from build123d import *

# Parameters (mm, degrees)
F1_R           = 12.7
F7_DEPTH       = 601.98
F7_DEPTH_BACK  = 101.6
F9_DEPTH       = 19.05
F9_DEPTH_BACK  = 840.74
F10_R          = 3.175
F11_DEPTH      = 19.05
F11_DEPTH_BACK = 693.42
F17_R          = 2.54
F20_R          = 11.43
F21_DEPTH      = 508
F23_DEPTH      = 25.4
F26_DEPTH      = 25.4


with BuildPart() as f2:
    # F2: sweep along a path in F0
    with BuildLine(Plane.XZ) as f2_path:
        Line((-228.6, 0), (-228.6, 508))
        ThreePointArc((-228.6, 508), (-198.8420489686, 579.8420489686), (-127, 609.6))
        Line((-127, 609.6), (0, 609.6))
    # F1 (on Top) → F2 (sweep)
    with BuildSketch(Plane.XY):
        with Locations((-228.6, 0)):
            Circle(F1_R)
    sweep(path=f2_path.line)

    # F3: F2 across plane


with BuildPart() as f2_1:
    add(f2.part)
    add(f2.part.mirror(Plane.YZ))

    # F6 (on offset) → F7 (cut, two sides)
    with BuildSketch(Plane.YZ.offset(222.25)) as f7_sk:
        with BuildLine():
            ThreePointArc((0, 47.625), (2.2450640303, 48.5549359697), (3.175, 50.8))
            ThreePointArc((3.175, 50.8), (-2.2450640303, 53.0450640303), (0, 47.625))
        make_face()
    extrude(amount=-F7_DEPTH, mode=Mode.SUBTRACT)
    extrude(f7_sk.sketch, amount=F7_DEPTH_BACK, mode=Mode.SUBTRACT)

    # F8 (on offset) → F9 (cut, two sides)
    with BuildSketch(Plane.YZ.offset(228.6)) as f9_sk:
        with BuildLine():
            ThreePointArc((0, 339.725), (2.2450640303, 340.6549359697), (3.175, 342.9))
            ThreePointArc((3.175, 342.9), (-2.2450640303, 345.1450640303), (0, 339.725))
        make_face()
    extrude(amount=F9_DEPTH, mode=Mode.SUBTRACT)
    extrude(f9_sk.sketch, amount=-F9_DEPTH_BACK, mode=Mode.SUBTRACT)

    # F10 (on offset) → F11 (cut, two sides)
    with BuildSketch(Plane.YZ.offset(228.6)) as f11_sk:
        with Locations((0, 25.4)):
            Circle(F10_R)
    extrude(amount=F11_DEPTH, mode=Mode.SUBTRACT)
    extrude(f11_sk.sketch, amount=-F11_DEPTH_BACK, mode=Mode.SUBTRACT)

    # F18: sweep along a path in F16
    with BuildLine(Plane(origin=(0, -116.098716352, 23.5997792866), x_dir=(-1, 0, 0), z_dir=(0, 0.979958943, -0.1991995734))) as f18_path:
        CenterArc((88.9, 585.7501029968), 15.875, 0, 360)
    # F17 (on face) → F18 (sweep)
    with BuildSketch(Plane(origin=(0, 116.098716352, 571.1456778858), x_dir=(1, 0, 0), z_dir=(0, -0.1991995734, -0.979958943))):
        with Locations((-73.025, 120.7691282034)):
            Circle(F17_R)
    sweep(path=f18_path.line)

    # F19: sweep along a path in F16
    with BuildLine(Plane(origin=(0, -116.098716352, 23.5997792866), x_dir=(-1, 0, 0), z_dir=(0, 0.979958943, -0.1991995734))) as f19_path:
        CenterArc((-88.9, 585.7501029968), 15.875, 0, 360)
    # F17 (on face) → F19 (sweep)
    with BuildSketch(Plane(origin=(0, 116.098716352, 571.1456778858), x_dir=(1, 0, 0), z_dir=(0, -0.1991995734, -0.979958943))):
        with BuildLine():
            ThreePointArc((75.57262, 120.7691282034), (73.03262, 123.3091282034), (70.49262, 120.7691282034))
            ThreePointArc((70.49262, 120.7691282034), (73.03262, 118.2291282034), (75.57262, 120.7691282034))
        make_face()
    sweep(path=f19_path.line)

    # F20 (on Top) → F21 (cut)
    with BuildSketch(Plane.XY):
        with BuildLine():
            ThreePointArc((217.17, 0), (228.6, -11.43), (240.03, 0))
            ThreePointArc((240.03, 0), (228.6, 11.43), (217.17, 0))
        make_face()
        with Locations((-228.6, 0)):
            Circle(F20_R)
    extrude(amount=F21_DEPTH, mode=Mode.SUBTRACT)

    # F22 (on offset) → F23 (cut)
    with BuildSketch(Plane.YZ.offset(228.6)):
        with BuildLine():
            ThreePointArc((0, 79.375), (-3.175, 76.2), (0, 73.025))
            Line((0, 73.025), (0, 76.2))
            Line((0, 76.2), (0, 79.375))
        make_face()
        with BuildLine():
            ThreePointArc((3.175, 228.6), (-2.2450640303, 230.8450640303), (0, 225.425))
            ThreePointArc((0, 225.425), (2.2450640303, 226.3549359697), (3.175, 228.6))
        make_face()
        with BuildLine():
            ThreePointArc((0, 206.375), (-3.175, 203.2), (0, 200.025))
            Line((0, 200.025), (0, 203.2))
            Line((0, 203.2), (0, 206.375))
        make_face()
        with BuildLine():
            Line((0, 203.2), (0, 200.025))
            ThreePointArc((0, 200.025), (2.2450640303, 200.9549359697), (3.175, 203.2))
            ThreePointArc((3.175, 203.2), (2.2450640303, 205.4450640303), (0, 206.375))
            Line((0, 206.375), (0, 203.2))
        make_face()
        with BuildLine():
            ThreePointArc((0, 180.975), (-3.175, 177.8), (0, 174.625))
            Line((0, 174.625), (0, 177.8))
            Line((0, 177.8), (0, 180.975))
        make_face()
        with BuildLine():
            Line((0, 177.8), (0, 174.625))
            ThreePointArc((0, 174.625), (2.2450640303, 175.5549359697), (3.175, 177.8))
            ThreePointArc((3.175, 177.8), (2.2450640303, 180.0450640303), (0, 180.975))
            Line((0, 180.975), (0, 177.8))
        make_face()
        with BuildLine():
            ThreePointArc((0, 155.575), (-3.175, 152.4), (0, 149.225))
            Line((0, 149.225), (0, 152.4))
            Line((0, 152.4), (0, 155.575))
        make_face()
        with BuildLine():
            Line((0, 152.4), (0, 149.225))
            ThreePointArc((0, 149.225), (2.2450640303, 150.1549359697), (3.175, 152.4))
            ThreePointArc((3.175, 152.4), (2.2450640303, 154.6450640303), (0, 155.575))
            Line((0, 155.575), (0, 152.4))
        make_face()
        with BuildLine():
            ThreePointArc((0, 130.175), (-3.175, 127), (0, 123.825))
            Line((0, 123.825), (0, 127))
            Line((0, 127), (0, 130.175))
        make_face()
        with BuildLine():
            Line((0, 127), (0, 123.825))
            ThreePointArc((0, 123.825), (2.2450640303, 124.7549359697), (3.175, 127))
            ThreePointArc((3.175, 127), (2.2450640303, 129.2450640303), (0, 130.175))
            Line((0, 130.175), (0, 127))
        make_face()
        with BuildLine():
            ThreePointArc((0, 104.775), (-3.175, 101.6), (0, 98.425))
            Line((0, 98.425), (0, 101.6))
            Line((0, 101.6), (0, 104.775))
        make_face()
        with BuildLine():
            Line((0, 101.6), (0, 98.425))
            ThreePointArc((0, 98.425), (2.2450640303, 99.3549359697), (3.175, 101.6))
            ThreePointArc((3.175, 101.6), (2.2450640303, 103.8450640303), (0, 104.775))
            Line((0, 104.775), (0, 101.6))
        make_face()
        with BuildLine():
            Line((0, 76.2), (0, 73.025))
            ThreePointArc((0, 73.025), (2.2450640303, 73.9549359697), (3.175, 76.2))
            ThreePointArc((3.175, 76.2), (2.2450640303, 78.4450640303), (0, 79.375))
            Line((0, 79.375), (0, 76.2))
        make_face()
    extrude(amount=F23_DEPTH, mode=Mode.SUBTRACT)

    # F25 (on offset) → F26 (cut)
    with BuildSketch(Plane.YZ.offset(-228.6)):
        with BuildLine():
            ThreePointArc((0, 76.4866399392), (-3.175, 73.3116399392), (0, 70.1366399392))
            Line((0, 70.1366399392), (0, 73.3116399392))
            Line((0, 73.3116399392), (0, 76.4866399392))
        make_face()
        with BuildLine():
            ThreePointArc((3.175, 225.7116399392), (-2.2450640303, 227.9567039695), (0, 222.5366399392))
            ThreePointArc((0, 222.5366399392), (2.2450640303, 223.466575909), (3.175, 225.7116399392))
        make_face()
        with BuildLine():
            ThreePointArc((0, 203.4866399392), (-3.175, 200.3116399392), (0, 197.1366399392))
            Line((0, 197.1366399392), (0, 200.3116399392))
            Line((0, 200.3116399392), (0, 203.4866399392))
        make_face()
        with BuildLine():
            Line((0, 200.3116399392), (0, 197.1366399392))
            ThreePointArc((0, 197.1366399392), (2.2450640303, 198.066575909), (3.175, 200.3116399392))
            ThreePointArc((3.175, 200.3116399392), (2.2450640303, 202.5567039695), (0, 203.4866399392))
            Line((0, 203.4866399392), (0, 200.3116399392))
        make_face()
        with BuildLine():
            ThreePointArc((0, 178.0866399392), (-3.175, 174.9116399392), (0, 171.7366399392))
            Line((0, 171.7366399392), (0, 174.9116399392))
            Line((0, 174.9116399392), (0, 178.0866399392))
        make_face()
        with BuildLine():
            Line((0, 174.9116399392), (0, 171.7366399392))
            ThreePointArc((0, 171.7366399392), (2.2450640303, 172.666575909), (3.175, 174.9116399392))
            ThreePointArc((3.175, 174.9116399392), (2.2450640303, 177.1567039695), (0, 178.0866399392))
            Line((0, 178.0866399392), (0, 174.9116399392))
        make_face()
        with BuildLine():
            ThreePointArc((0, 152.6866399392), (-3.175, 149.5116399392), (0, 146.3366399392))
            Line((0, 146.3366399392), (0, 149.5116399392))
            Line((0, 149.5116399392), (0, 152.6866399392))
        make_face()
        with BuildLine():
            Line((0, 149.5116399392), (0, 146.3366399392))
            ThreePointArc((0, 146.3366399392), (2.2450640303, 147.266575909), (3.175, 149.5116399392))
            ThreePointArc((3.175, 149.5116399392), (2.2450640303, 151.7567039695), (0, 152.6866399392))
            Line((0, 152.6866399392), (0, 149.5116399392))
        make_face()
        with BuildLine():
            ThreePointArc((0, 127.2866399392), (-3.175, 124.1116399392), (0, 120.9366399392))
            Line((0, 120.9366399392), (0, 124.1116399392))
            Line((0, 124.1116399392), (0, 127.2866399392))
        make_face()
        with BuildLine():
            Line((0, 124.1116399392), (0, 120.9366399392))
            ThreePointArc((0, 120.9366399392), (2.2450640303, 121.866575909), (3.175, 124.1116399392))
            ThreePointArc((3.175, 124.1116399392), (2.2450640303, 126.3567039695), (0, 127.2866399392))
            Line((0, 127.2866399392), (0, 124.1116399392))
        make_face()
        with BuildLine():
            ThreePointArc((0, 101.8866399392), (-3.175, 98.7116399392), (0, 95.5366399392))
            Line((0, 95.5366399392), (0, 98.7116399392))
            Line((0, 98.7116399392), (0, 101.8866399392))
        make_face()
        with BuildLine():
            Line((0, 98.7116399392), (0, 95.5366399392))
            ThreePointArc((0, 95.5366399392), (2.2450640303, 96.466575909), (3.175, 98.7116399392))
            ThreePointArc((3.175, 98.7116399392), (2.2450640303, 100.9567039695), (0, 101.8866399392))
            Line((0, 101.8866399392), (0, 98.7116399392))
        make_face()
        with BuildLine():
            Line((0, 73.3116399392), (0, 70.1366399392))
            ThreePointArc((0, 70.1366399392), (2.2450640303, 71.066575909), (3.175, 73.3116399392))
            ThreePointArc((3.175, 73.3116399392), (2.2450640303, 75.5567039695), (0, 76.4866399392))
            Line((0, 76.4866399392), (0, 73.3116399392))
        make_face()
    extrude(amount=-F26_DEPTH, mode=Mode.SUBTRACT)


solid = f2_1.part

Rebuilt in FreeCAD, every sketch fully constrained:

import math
import FreeCAD as App
import Part
import Sketcher
from FreeCAD import Vector
Q = App.Units.Quantity

doc = App.newDocument("Part")
params = doc.addObject("Spreadsheet::Sheet", "Params")
for row, (alias, value) in enumerate([
    ("sketch1_diameter", "1 in"),
    ("sketch2_radius", "4 in"),
    ("sketch2_width", "5 in"),
    ("sketch2_height", "20 in"),
    ("sketch3_radius", "0.125 in"),
    ("sketch4_radius", "0.125 in"),
    ("sketch5_diameter", "0.25 in"),
    ("sketch6_diameter", "0.2 in"),
    ("sketch7_diameter", "1.25 in"),
    ("sketch8_diameter", "0.2 in"),
    ("sketch9_diameter", "1.25 in"),
    ("sketch10_diameter", "0.9 in"),
    ("pocket4_length", "20 in"),
    ("sketch11_radius", "0.125 in"),
    ("pocket5_length", "1 in"),
    ("sketch12_radius", "0.125 in"),
    ("pocket6_length", "1 in"),
], start=1):
    params.set(f"A{row}", alias)
    params.set(f"B{row}", "=" + value)
    params.setAlias(f"B{row}", alias)

body = doc.addObject("PartDesign::Body", "Body")

# Sketch on XY plane
sketch1 = doc.addObject("Sketcher::SketchObject", "Sketch")
body.addObject(sketch1)
sketch1.AttachmentSupport = (doc.XY_Plane, [""])
sketch1.MapMode = "FlatFace"
sketch1.addGeometry(Part.Circle(Vector(-229, 0, 0), Vector(0, 0, 1), 13), False)
sketch1.addConstraint(Sketcher.Constraint("PointOnObject", 0, 3, -1))
sketch1.addConstraint(Sketcher.Constraint("Diameter", 0, Q("1 in")))
sketch1.addConstraint(Sketcher.Constraint("DistanceX", 0, 3, -1, 1, Q("9 in")))
sketch1.setExpression("Constraints[1]", "Params.sketch1_diameter")

# Sketch on XZ plane
sketch2 = doc.addObject("Sketcher::SketchObject", "Sketch001")
body.addObject(sketch2)
sketch2.AttachmentSupport = (doc.XZ_Plane, [""])
sketch2.MapMode = "FlatFace"
sketch2.addGeometry(Part.LineSegment(Vector(-229, 0, 0), Vector(-229, 508, 0)), False)
sketch2.addGeometry(Part.ArcOfCircle(Part.Circle(Vector(-127, 508, 0), Vector(0, 0, 1), 102), math.radians(90), math.radians(180)), False)
sketch2.addGeometry(Part.LineSegment(Vector(-127, 610, 0), Vector(0, 610, 0)), False)
sketch2.addConstraint(Sketcher.Constraint("Tangent", 0, 2, 1, 2))
sketch2.addConstraint(Sketcher.Constraint("Tangent", 1, 1, 2, 1))
sketch2.addConstraint(Sketcher.Constraint("Vertical", 0))
sketch2.addConstraint(Sketcher.Constraint("Horizontal", 2))
sketch2.addConstraint(Sketcher.Constraint("PointOnObject", 0, 1, -1))
sketch2.addConstraint(Sketcher.Constraint("PointOnObject", 2, 2, -2))
sketch2.addConstraint(Sketcher.Constraint("Radius", 1, Q("4 in")))
sketch2.addConstraint(Sketcher.Constraint("DistanceX", 2, 1, 2, 2, Q("5 in")))
sketch2.addConstraint(Sketcher.Constraint("DistanceY", 0, 1, 0, 2, Q("20 in")))
sketch2.setExpression("Constraints[6]", "Params.sketch2_radius")
sketch2.setExpression("Constraints[7]", "Params.sketch2_width")
sketch2.setExpression("Constraints[8]", "Params.sketch2_height")
doc.recompute()

additivepipe = doc.addObject("PartDesign::AdditivePipe", "AdditivePipe")
body.addObject(additivepipe)
additivepipe.Profile = sketch1
additivepipe.Spine = (sketch2, ["Edge1", "Edge2", "Edge3"])
body2 = doc.addObject("PartDesign::Body", "Body001")
doc.recompute()

body2.BaseFeature = body
doc.recompute()

mirroring = doc.addObject("Part::Mirroring", "Mirroring")
mirroring.Source = body
mirroring.Base = Vector(0, 0, 0)
mirroring.Normal = Vector(1, 0, 0)
body3 = doc.addObject("PartDesign::Body", "Body002")
body3.BaseFeature = mirroring
boolean = doc.addObject("PartDesign::Boolean", "Boolean")
body2.addObject(boolean)
boolean.Type = "Fuse"
boolean.addObjects([body3])
doc.recompute()

# Sketch on YZ plane
sketch3 = doc.addObject("Sketcher::SketchObject", "Sketch002")
body2.addObject(sketch3)
sketch3.AttachmentSupport = (doc.getObject("YZ_Plane001"), [""])
sketch3.MapMode = "FlatFace"
sketch3.AttachmentOffset = App.Placement(Vector(0, 0, 8.75 * 25.4), App.Rotation())
sketch3.addGeometry(Part.ArcOfCircle(Part.Circle(Vector(0, 50.8, 0), Vector(0, 0, 1), 3.2), math.radians(-90), math.radians(0)), False)
sketch3.addGeometry(Part.ArcOfCircle(Part.Circle(Vector(0, 50.8, 0), Vector(0, 0, 1), 3.2), math.radians(0), math.radians(270)), False)
sketch3.addConstraint(Sketcher.Constraint("Tangent", 0, 1, 1, 2))
sketch3.addConstraint(Sketcher.Constraint("Coincident", 1, 1, 0, 2))
sketch3.addConstraint(Sketcher.Constraint("PointOnObject", 0, 3, -2))
sketch3.addConstraint(Sketcher.Constraint("PointOnObject", 0, 1, -2))
sketch3.addConstraint(Sketcher.Constraint("Horizontal", 0, 3, 1, 1))
sketch3.addConstraint(Sketcher.Constraint("DistanceY", -1, 1, 0, 3, Q("2 in")))
sketch3.addConstraint(Sketcher.Constraint("Radius", 0, Q("0.125 in")))
sketch3.setExpression("Constraints[6]", "Params.sketch3_radius")
pocket1 = doc.addObject("PartDesign::Pocket", "Pocket")
body2.addObject(pocket1)
pocket1.Profile = sketch3
pocket1.Type = "ThroughAll"
pocket1.Midplane = True

# Sketch on YZ plane
sketch4 = doc.addObject("Sketcher::SketchObject", "Sketch003")
body2.addObject(sketch4)
sketch4.AttachmentSupport = (doc.getObject("YZ_Plane001"), [""])
sketch4.MapMode = "FlatFace"
sketch4.AttachmentOffset = App.Placement(Vector(0, 0, 9 * 25.4), App.Rotation())
sketch4.addGeometry(Part.ArcOfCircle(Part.Circle(Vector(0, 342.9, 0), Vector(0, 0, 1), 3.2), math.radians(-90), math.radians(0)), False)
sketch4.addGeometry(Part.ArcOfCircle(Part.Circle(Vector(0, 342.9, 0), Vector(0, 0, 1), 3.2), math.radians(0), math.radians(270)), False)
sketch4.addConstraint(Sketcher.Constraint("Tangent", 0, 1, 1, 2))
sketch4.addConstraint(Sketcher.Constraint("Coincident", 1, 1, 0, 2))
sketch4.addConstraint(Sketcher.Constraint("PointOnObject", 0, 3, -2))
sketch4.addConstraint(Sketcher.Constraint("PointOnObject", 0, 1, -2))
sketch4.addConstraint(Sketcher.Constraint("Horizontal", 0, 3, 1, 1))
sketch4.addConstraint(Sketcher.Constraint("Radius", 0, Q("0.125 in")))
sketch4.addConstraint(Sketcher.Constraint("DistanceY", -1, 1, 0, 3, Q("13.5 in")))
sketch4.setExpression("Constraints[5]", "Params.sketch4_radius")
pocket2 = doc.addObject("PartDesign::Pocket", "Pocket001")
body2.addObject(pocket2)
pocket2.Profile = sketch4
pocket2.Type = "ThroughAll"
pocket2.Midplane = True

# Sketch on YZ plane
sketch5 = doc.addObject("Sketcher::SketchObject", "Sketch004")
body2.addObject(sketch5)
sketch5.AttachmentSupport = (doc.getObject("YZ_Plane001"), [""])
sketch5.MapMode = "FlatFace"
sketch5.AttachmentOffset = App.Placement(Vector(0, 0, 9 * 25.4), App.Rotation())
sketch5.addGeometry(Part.Circle(Vector(0, 25.4, 0), Vector(0, 0, 1), 3.2), False)
sketch5.addConstraint(Sketcher.Constraint("PointOnObject", 0, 3, -2))
sketch5.addConstraint(Sketcher.Constraint("Diameter", 0, Q("0.25 in")))
sketch5.addConstraint(Sketcher.Constraint("DistanceY", -1, 1, 0, 3, Q("1 in")))
sketch5.setExpression("Constraints[1]", "Params.sketch5_diameter")
pocket3 = doc.addObject("PartDesign::Pocket", "Pocket002")
body2.addObject(pocket3)
pocket3.Profile = sketch5
pocket3.Type = "ThroughAll"
pocket3.Midplane = True

# Sketch on an angled plane
sketch6 = doc.addObject("Sketcher::SketchObject", "Sketch005")
body2.addObject(sketch6)
sketch6.Placement = App.Placement(Vector(0, 116.098716, 571.145678), App.Rotation(Vector(1, 0, 0), Vector(0, -0.979958943, 0.199199573), Vector(0, -0.199199573, -0.979958943), "ZXY"))
sketch6.addGeometry(Part.Circle(Vector(-73, 120.8, 0), Vector(0, 0, 1), 2.5), False)
sketch6.addConstraint(Sketcher.Constraint("Diameter", 0, Q("0.2 in")))
sketch6.addConstraint(Sketcher.Constraint("DistanceX", 0, 3, -1, 1, Q("2.875 in")))
sketch6.addConstraint(Sketcher.Constraint("DistanceY", -1, 1, 0, 3, Q("120.769128 mm")))
sketch6.setExpression("Constraints[0]", "Params.sketch6_diameter")

# Sketch on an angled plane
sketch7 = doc.addObject("Sketcher::SketchObject", "Sketch006")
body2.addObject(sketch7)
sketch7.Placement = App.Placement(Vector(0, -116.098716, 23.599779), App.Rotation(Vector(0, -0.199199573, -0.979958943), Vector(1, 0, 0), Vector(0, -0.979958943, 0.199199573), "ZXY"))
sketch7.addGeometry(Part.Circle(Vector(-586, -89, 0), Vector(0, 0, 1), 16), False)
sketch7.addConstraint(Sketcher.Constraint("Diameter", 0, Q("1.25 in")))
sketch7.addConstraint(Sketcher.Constraint("DistanceY", 0, 3, -1, 1, Q("3.5 in")))
sketch7.addConstraint(Sketcher.Constraint("DistanceX", 0, 3, -1, 1, Q("585.750103 mm")))
sketch7.setExpression("Constraints[0]", "Params.sketch7_diameter")
doc.recompute()

additivepipe2 = doc.addObject("PartDesign::AdditivePipe", "AdditivePipe001")
body2.addObject(additivepipe2)
additivepipe2.Profile = sketch6
additivepipe2.Spine = (sketch7, ["Edge1"])

# Sketch on an angled plane
sketch8 = doc.addObject("Sketcher::SketchObject", "Sketch007")
body2.addObject(sketch8)
sketch8.Placement = App.Placement(Vector(0, 116.098716, 571.145678), App.Rotation(Vector(1, 0, 0), Vector(0, -0.979958943, 0.199199573), Vector(0, -0.199199573, -0.979958943), "ZXY"))
sketch8.addGeometry(Part.Circle(Vector(73, 120.8, 0), Vector(0, 0, 1), 2.5), False)
sketch8.addConstraint(Sketcher.Constraint("Diameter", 0, Q("0.2 in")))
sketch8.addConstraint(Sketcher.Constraint("DistanceX", -1, 1, 0, 3, Q("2.8753 in")))
sketch8.addConstraint(Sketcher.Constraint("DistanceY", -1, 1, 0, 3, Q("120.769128 mm")))
sketch8.setExpression("Constraints[0]", "Params.sketch8_diameter")

# Sketch on an angled plane
sketch9 = doc.addObject("Sketcher::SketchObject", "Sketch008")
body2.addObject(sketch9)
sketch9.Placement = App.Placement(Vector(0, -116.098716, 23.599779), App.Rotation(Vector(0, -0.199199573, -0.979958943), Vector(1, 0, 0), Vector(0, -0.979958943, 0.199199573), "ZXY"))
sketch9.addGeometry(Part.Circle(Vector(-586, 89, 0), Vector(0, 0, 1), 16), False)
sketch9.addConstraint(Sketcher.Constraint("Diameter", 0, Q("1.25 in")))
sketch9.addConstraint(Sketcher.Constraint("DistanceY", -1, 1, 0, 3, Q("3.5 in")))
sketch9.addConstraint(Sketcher.Constraint("DistanceX", 0, 3, -1, 1, Q("585.750103 mm")))
sketch9.setExpression("Constraints[0]", "Params.sketch9_diameter")
doc.recompute()

additivepipe3 = doc.addObject("PartDesign::AdditivePipe", "AdditivePipe002")
body2.addObject(additivepipe3)
additivepipe3.Profile = sketch8
additivepipe3.Spine = (sketch9, ["Edge1"])

# Sketch on XY plane
sketch10 = doc.addObject("Sketcher::SketchObject", "Sketch009")
body2.addObject(sketch10)
sketch10.AttachmentSupport = (doc.getObject("XY_Plane001"), [""])
sketch10.MapMode = "FlatFace"
sketch10.addGeometry(Part.Circle(Vector(229, 0, 0), Vector(0, 0, 1), 11), False)
sketch10.addGeometry(Part.Circle(Vector(-229, 0, 0), Vector(0, 0, 1), 11), False)
sketch10.addConstraint(Sketcher.Constraint("Equal", 0, 1))
sketch10.addConstraint(Sketcher.Constraint("Symmetric", 0, 3, 1, 3, -1, 1))
sketch10.addConstraint(Sketcher.Constraint("PointOnObject", 0, 3, -1))
sketch10.addConstraint(Sketcher.Constraint("Diameter", 0, Q("0.9 in")))
sketch10.addConstraint(Sketcher.Constraint("DistanceX", -1, 1, 0, 3, Q("9 in")))
sketch10.setExpression("Constraints[3]", "Params.sketch10_diameter")
pocket4 = doc.addObject("PartDesign::Pocket", "Pocket003")
body2.addObject(pocket4)
pocket4.Profile = sketch10
pocket4.setExpression("Length", "Params.pocket4_length")
pocket4.Reversed = True

# Sketch on YZ plane
sketch11 = doc.addObject("Sketcher::SketchObject", "Sketch010")
body2.addObject(sketch11)
sketch11.AttachmentSupport = (doc.getObject("YZ_Plane001"), [""])
sketch11.MapMode = "FlatFace"
sketch11.AttachmentOffset = App.Placement(Vector(0, 0, 9 * 25.4), App.Rotation())
sketch11.addGeometry(Part.ArcOfCircle(Part.Circle(Vector(0, 76.2, 0), Vector(0, 0, 1), 3.2), math.radians(90), math.radians(270)), False)
sketch11.addGeometry(Part.ArcOfCircle(Part.Circle(Vector(0, 76.2, 0), Vector(0, 0, 1), 3.2), math.radians(-90), math.radians(0)), False)
sketch11.addGeometry(Part.ArcOfCircle(Part.Circle(Vector(0, 76.2, 0), Vector(0, 0, 1), 3.2), math.radians(0), math.radians(90)), False)
sketch11.addGeometry(Part.ArcOfCircle(Part.Circle(Vector(0, 228.6, 0), Vector(0, 0, 1), 3.2), math.radians(0), math.radians(270)), False)
sketch11.addGeometry(Part.ArcOfCircle(Part.Circle(Vector(0, 228.6, 0), Vector(0, 0, 1), 3.2), math.radians(-90), math.radians(0)), False)
sketch11.addGeometry(Part.ArcOfCircle(Part.Circle(Vector(0, 203.2, 0), Vector(0, 0, 1), 3.2), math.radians(90), math.radians(270)), False)
sketch11.addGeometry(Part.ArcOfCircle(Part.Circle(Vector(0, 203.2, 0), Vector(0, 0, 1), 3.2), math.radians(-90), math.radians(0)), False)
sketch11.addGeometry(Part.ArcOfCircle(Part.Circle(Vector(0, 203.2, 0), Vector(0, 0, 1), 3.2), math.radians(0), math.radians(90)), False)
sketch11.addGeometry(Part.ArcOfCircle(Part.Circle(Vector(0, 177.8, 0), Vector(0, 0, 1), 3.2), math.radians(90), math.radians(270)), False)
sketch11.addGeometry(Part.ArcOfCircle(Part.Circle(Vector(0, 177.8, 0), Vector(0, 0, 1), 3.2), math.radians(-90), math.radians(0)), False)
sketch11.addGeometry(Part.ArcOfCircle(Part.Circle(Vector(0, 177.8, 0), Vector(0, 0, 1), 3.2), math.radians(0), math.radians(90)), False)
sketch11.addGeometry(Part.ArcOfCircle(Part.Circle(Vector(0, 152.4, 0), Vector(0, 0, 1), 3.2), math.radians(90), math.radians(270)), False)
sketch11.addGeometry(Part.ArcOfCircle(Part.Circle(Vector(0, 152.4, 0), Vector(0, 0, 1), 3.2), math.radians(-90), math.radians(0)), False)
sketch11.addGeometry(Part.ArcOfCircle(Part.Circle(Vector(0, 152.4, 0), Vector(0, 0, 1), 3.2), math.radians(0), math.radians(90)), False)
sketch11.addGeometry(Part.ArcOfCircle(Part.Circle(Vector(0, 127, 0), Vector(0, 0, 1), 3.2), math.radians(90), math.radians(270)), False)
sketch11.addGeometry(Part.ArcOfCircle(Part.Circle(Vector(0, 127, 0), Vector(0, 0, 1), 3.2), math.radians(-90), math.radians(0)), False)
sketch11.addGeometry(Part.ArcOfCircle(Part.Circle(Vector(0, 127, 0), Vector(0, 0, 1), 3.2), math.radians(0), math.radians(90)), False)
sketch11.addGeometry(Part.ArcOfCircle(Part.Circle(Vector(0, 101.6, 0), Vector(0, 0, 1), 3.2), math.radians(90), math.radians(270)), False)
sketch11.addGeometry(Part.ArcOfCircle(Part.Circle(Vector(0, 101.6, 0), Vector(0, 0, 1), 3.2), math.radians(-90), math.radians(0)), False)
sketch11.addGeometry(Part.ArcOfCircle(Part.Circle(Vector(0, 101.6, 0), Vector(0, 0, 1), 3.2), math.radians(0), math.radians(90)), False)
sketch11.addConstraint(Sketcher.Constraint("Tangent", 0, 2, 1, 1))
sketch11.addConstraint(Sketcher.Constraint("Tangent", 1, 2, 2, 1))
sketch11.addConstraint(Sketcher.Constraint("Tangent", 2, 2, 0, 1))
sketch11.addConstraint(Sketcher.Constraint("Tangent", 3, 1, 4, 2))
sketch11.addConstraint(Sketcher.Constraint("Coincident", 4, 1, 3, 2))
sketch11.addConstraint(Sketcher.Constraint("Tangent", 5, 2, 6, 1))
sketch11.addConstraint(Sketcher.Constraint("Tangent", 6, 2, 7, 1))
sketch11.addConstraint(Sketcher.Constraint("Tangent", 7, 2, 5, 1))
sketch11.addConstraint(Sketcher.Constraint("Tangent", 8, 2, 9, 1))
sketch11.addConstraint(Sketcher.Constraint("Tangent", 9, 2, 10, 1))
sketch11.addConstraint(Sketcher.Constraint("Tangent", 10, 2, 8, 1))
sketch11.addConstraint(Sketcher.Constraint("Tangent", 11, 2, 12, 1))
sketch11.addConstraint(Sketcher.Constraint("Tangent", 12, 2, 13, 1))
sketch11.addConstraint(Sketcher.Constraint("Tangent", 13, 2, 11, 1))
sketch11.addConstraint(Sketcher.Constraint("Tangent", 14, 2, 15, 1))
sketch11.addConstraint(Sketcher.Constraint("Tangent", 15, 2, 16, 1))
sketch11.addConstraint(Sketcher.Constraint("Tangent", 16, 2, 14, 1))
sketch11.addConstraint(Sketcher.Constraint("Tangent", 17, 2, 18, 1))
sketch11.addConstraint(Sketcher.Constraint("Tangent", 18, 2, 19, 1))
sketch11.addConstraint(Sketcher.Constraint("Tangent", 19, 2, 17, 1))
sketch11.addConstraint(Sketcher.Constraint("Equal", 2, 3))
sketch11.addConstraint(Sketcher.Constraint("Equal", 4, 5))
sketch11.addConstraint(Sketcher.Constraint("Equal", 7, 8))
sketch11.addConstraint(Sketcher.Constraint("Equal", 10, 11))
sketch11.addConstraint(Sketcher.Constraint("Equal", 13, 14))
sketch11.addConstraint(Sketcher.Constraint("Equal", 16, 17))
sketch11.addConstraint(Sketcher.Constraint("PointOnObject", 0, 3, -2))
sketch11.addConstraint(Sketcher.Constraint("PointOnObject", 3, 3, -2))
sketch11.addConstraint(Sketcher.Constraint("PointOnObject", 5, 3, -2))
sketch11.addConstraint(Sketcher.Constraint("PointOnObject", 8, 3, -2))
sketch11.addConstraint(Sketcher.Constraint("PointOnObject", 11, 3, -2))
sketch11.addConstraint(Sketcher.Constraint("PointOnObject", 14, 3, -2))
sketch11.addConstraint(Sketcher.Constraint("PointOnObject", 17, 3, -2))
sketch11.addConstraint(Sketcher.Constraint("PointOnObject", 0, 2, -2))
sketch11.addConstraint(Sketcher.Constraint("PointOnObject", 2, 2, -2))
sketch11.addConstraint(Sketcher.Constraint("PointOnObject", 4, 1, -2))
sketch11.addConstraint(Sketcher.Constraint("PointOnObject", 5, 2, -2))
sketch11.addConstraint(Sketcher.Constraint("PointOnObject", 7, 2, -2))
sketch11.addConstraint(Sketcher.Constraint("PointOnObject", 8, 2, -2))
sketch11.addConstraint(Sketcher.Constraint("PointOnObject", 10, 2, -2))
sketch11.addConstraint(Sketcher.Constraint("PointOnObject", 11, 2, -2))
sketch11.addConstraint(Sketcher.Constraint("PointOnObject", 13, 2, -2))
sketch11.addConstraint(Sketcher.Constraint("PointOnObject", 14, 2, -2))
sketch11.addConstraint(Sketcher.Constraint("PointOnObject", 16, 2, -2))
sketch11.addConstraint(Sketcher.Constraint("PointOnObject", 17, 2, -2))
sketch11.addConstraint(Sketcher.Constraint("PointOnObject", 19, 2, -2))
sketch11.addConstraint(Sketcher.Constraint("Horizontal", 2, 3, 1, 2))
sketch11.addConstraint(Sketcher.Constraint("Horizontal", 4, 3, 3, 1))
sketch11.addConstraint(Sketcher.Constraint("Horizontal", 7, 3, 6, 2))
sketch11.addConstraint(Sketcher.Constraint("Horizontal", 10, 3, 9, 2))
sketch11.addConstraint(Sketcher.Constraint("Horizontal", 13, 3, 12, 2))
sketch11.addConstraint(Sketcher.Constraint("Horizontal", 16, 3, 15, 2))
sketch11.addConstraint(Sketcher.Constraint("Horizontal", 19, 3, 18, 2))
sketch11.addConstraint(Sketcher.Constraint("DistanceY", -1, 1, 0, 3, Q("3 in")))
sketch11.addConstraint(Sketcher.Constraint("DistanceY", -1, 1, 3, 3, Q("9 in")))
sketch11.addConstraint(Sketcher.Constraint("DistanceY", -1, 1, 5, 3, Q("8 in")))
sketch11.addConstraint(Sketcher.Constraint("DistanceY", -1, 1, 8, 3, Q("7 in")))
sketch11.addConstraint(Sketcher.Constraint("DistanceY", -1, 1, 11, 3, Q("6 in")))
sketch11.addConstraint(Sketcher.Constraint("DistanceY", -1, 1, 14, 3, Q("5 in")))
sketch11.addConstraint(Sketcher.Constraint("DistanceY", -1, 1, 17, 3, Q("4 in")))
sketch11.addConstraint(Sketcher.Constraint("Radius", 0, Q("0.125 in")))
sketch11.setExpression("Constraints[60]", "Params.sketch11_radius")
pocket5 = doc.addObject("PartDesign::Pocket", "Pocket004")
body2.addObject(pocket5)
pocket5.Profile = sketch11
pocket5.setExpression("Length", "Params.pocket5_length")
pocket5.Reversed = True

# Sketch on YZ plane
sketch12 = doc.addObject("Sketcher::SketchObject", "Sketch011")
body2.addObject(sketch12)
sketch12.AttachmentSupport = (doc.getObject("YZ_Plane001"), [""])
sketch12.MapMode = "FlatFace"
sketch12.AttachmentOffset = App.Placement(Vector(0, 0, -9 * 25.4), App.Rotation())
sketch12.addGeometry(Part.ArcOfCircle(Part.Circle(Vector(0, 73.3, 0), Vector(0, 0, 1), 3.2), math.radians(90), math.radians(270)), False)
sketch12.addGeometry(Part.ArcOfCircle(Part.Circle(Vector(0, 73.3, 0), Vector(0, 0, 1), 3.2), math.radians(-90), math.radians(0)), False)
sketch12.addGeometry(Part.ArcOfCircle(Part.Circle(Vector(0, 73.3, 0), Vector(0, 0, 1), 3.2), math.radians(0), math.radians(90)), False)
sketch12.addGeometry(Part.ArcOfCircle(Part.Circle(Vector(0, 225.7, 0), Vector(0, 0, 1), 3.2), math.radians(0), math.radians(270)), False)
sketch12.addGeometry(Part.ArcOfCircle(Part.Circle(Vector(0, 225.7, 0), Vector(0, 0, 1), 3.2), math.radians(-90), math.radians(0)), False)
sketch12.addGeometry(Part.ArcOfCircle(Part.Circle(Vector(0, 200.3, 0), Vector(0, 0, 1), 3.2), math.radians(90), math.radians(270)), False)
sketch12.addGeometry(Part.ArcOfCircle(Part.Circle(Vector(0, 200.3, 0), Vector(0, 0, 1), 3.2), math.radians(-90), math.radians(0)), False)
sketch12.addGeometry(Part.ArcOfCircle(Part.Circle(Vector(0, 200.3, 0), Vector(0, 0, 1), 3.2), math.radians(0), math.radians(90)), False)
sketch12.addGeometry(Part.ArcOfCircle(Part.Circle(Vector(0, 174.9, 0), Vector(0, 0, 1), 3.2), math.radians(90), math.radians(270)), False)
sketch12.addGeometry(Part.ArcOfCircle(Part.Circle(Vector(0, 174.9, 0), Vector(0, 0, 1), 3.2), math.radians(-90), math.radians(0)), False)
sketch12.addGeometry(Part.ArcOfCircle(Part.Circle(Vector(0, 174.9, 0), Vector(0, 0, 1), 3.2), math.radians(0), math.radians(90)), False)
sketch12.addGeometry(Part.ArcOfCircle(Part.Circle(Vector(0, 149.5, 0), Vector(0, 0, 1), 3.2), math.radians(90), math.radians(270)), False)
sketch12.addGeometry(Part.ArcOfCircle(Part.Circle(Vector(0, 149.5, 0), Vector(0, 0, 1), 3.2), math.radians(-90), math.radians(0)), False)
sketch12.addGeometry(Part.ArcOfCircle(Part.Circle(Vector(0, 149.5, 0), Vector(0, 0, 1), 3.2), math.radians(0), math.radians(90)), False)
sketch12.addGeometry(Part.ArcOfCircle(Part.Circle(Vector(0, 124.1, 0), Vector(0, 0, 1), 3.2), math.radians(90), math.radians(270)), False)
sketch12.addGeometry(Part.ArcOfCircle(Part.Circle(Vector(0, 124.1, 0), Vector(0, 0, 1), 3.2), math.radians(-90), math.radians(0)), False)
sketch12.addGeometry(Part.ArcOfCircle(Part.Circle(Vector(0, 124.1, 0), Vector(0, 0, 1), 3.2), math.radians(0), math.radians(90)), False)
sketch12.addGeometry(Part.ArcOfCircle(Part.Circle(Vector(0, 98.7, 0), Vector(0, 0, 1), 3.2), math.radians(90), math.radians(270)), False)
sketch12.addGeometry(Part.ArcOfCircle(Part.Circle(Vector(0, 98.7, 0), Vector(0, 0, 1), 3.2), math.radians(-90), math.radians(0)), False)
sketch12.addGeometry(Part.ArcOfCircle(Part.Circle(Vector(0, 98.7, 0), Vector(0, 0, 1), 3.2), math.radians(0), math.radians(90)), False)
sketch12.addConstraint(Sketcher.Constraint("Tangent", 0, 2, 1, 1))
sketch12.addConstraint(Sketcher.Constraint("Tangent", 1, 2, 2, 1))
sketch12.addConstraint(Sketcher.Constraint("Tangent", 2, 2, 0, 1))
sketch12.addConstraint(Sketcher.Constraint("Tangent", 3, 1, 4, 2))
sketch12.addConstraint(Sketcher.Constraint("Coincident", 4, 1, 3, 2))
sketch12.addConstraint(Sketcher.Constraint("Tangent", 5, 2, 6, 1))
sketch12.addConstraint(Sketcher.Constraint("Tangent", 6, 2, 7, 1))
sketch12.addConstraint(Sketcher.Constraint("Tangent", 7, 2, 5, 1))
sketch12.addConstraint(Sketcher.Constraint("Tangent", 8, 2, 9, 1))
sketch12.addConstraint(Sketcher.Constraint("Tangent", 9, 2, 10, 1))
sketch12.addConstraint(Sketcher.Constraint("Tangent", 10, 2, 8, 1))
sketch12.addConstraint(Sketcher.Constraint("Tangent", 11, 2, 12, 1))
sketch12.addConstraint(Sketcher.Constraint("Tangent", 12, 2, 13, 1))
sketch12.addConstraint(Sketcher.Constraint("Tangent", 13, 2, 11, 1))
sketch12.addConstraint(Sketcher.Constraint("Tangent", 14, 2, 15, 1))
sketch12.addConstraint(Sketcher.Constraint("Tangent", 15, 2, 16, 1))
sketch12.addConstraint(Sketcher.Constraint("Tangent", 16, 2, 14, 1))
sketch12.addConstraint(Sketcher.Constraint("Tangent", 17, 2, 18, 1))
sketch12.addConstraint(Sketcher.Constraint("Tangent", 18, 2, 19, 1))
sketch12.addConstraint(Sketcher.Constraint("Tangent", 19, 2, 17, 1))
sketch12.addConstraint(Sketcher.Constraint("Equal", 2, 3))
sketch12.addConstraint(Sketcher.Constraint("Equal", 4, 5))
sketch12.addConstraint(Sketcher.Constraint("Equal", 7, 8))
sketch12.addConstraint(Sketcher.Constraint("Equal", 10, 11))
sketch12.addConstraint(Sketcher.Constraint("Equal", 13, 14))
sketch12.addConstraint(Sketcher.Constraint("Equal", 16, 17))
sketch12.addConstraint(Sketcher.Constraint("PointOnObject", 0, 3, -2))
sketch12.addConstraint(Sketcher.Constraint("PointOnObject", 3, 3, -2))
sketch12.addConstraint(Sketcher.Constraint("PointOnObject", 5, 3, -2))
sketch12.addConstraint(Sketcher.Constraint("PointOnObject", 8, 3, -2))
sketch12.addConstraint(Sketcher.Constraint("PointOnObject", 11, 3, -2))
sketch12.addConstraint(Sketcher.Constraint("PointOnObject", 14, 3, -2))
sketch12.addConstraint(Sketcher.Constraint("PointOnObject", 17, 3, -2))
sketch12.addConstraint(Sketcher.Constraint("PointOnObject", 0, 2, -2))
sketch12.addConstraint(Sketcher.Constraint("PointOnObject", 2, 2, -2))
sketch12.addConstraint(Sketcher.Constraint("PointOnObject", 4, 1, -2))
sketch12.addConstraint(Sketcher.Constraint("PointOnObject", 5, 2, -2))
sketch12.addConstraint(Sketcher.Constraint("PointOnObject", 7, 2, -2))
sketch12.addConstraint(Sketcher.Constraint("PointOnObject", 8, 2, -2))
sketch12.addConstraint(Sketcher.Constraint("PointOnObject", 10, 2, -2))
sketch12.addConstraint(Sketcher.Constraint("PointOnObject", 11, 2, -2))
sketch12.addConstraint(Sketcher.Constraint("PointOnObject", 13, 2, -2))
sketch12.addConstraint(Sketcher.Constraint("PointOnObject", 14, 2, -2))
sketch12.addConstraint(Sketcher.Constraint("PointOnObject", 16, 2, -2))
sketch12.addConstraint(Sketcher.Constraint("PointOnObject", 17, 2, -2))
sketch12.addConstraint(Sketcher.Constraint("PointOnObject", 19, 2, -2))
sketch12.addConstraint(Sketcher.Constraint("Horizontal", 2, 3, 1, 2))
sketch12.addConstraint(Sketcher.Constraint("Horizontal", 4, 3, 3, 1))
sketch12.addConstraint(Sketcher.Constraint("Horizontal", 7, 3, 6, 2))
sketch12.addConstraint(Sketcher.Constraint("Horizontal", 10, 3, 9, 2))
sketch12.addConstraint(Sketcher.Constraint("Horizontal", 13, 3, 12, 2))
sketch12.addConstraint(Sketcher.Constraint("Horizontal", 16, 3, 15, 2))
sketch12.addConstraint(Sketcher.Constraint("Horizontal", 19, 3, 18, 2))
sketch12.addConstraint(Sketcher.Constraint("Radius", 0, Q("0.125 in")))
sketch12.addConstraint(Sketcher.Constraint("DistanceY", 0, 3, 3, 3, Q("6 in")))
sketch12.addConstraint(Sketcher.Constraint("DistanceY", 5, 3, 3, 3, Q("1 in")))
sketch12.addConstraint(Sketcher.Constraint("DistanceY", 8, 3, 5, 3, Q("1 in")))
sketch12.addConstraint(Sketcher.Constraint("DistanceY", 11, 3, 8, 3, Q("1 in")))
sketch12.addConstraint(Sketcher.Constraint("DistanceY", 14, 3, 11, 3, Q("1 in")))
sketch12.addConstraint(Sketcher.Constraint("DistanceY", 0, 3, 17, 3, Q("1 in")))
sketch12.addConstraint(Sketcher.Constraint("DistanceY", -1, 1, 0, 3, Q("73.31164 mm")))
sketch12.setExpression("Constraints[53]", "Params.sketch12_radius")
pocket6 = doc.addObject("PartDesign::Pocket", "Pocket005")
body2.addObject(pocket6)
pocket6.Profile = sketch12
pocket6.setExpression("Length", "Params.pocket6_length")
mirroring.Visibility = False

doc.recompute()
